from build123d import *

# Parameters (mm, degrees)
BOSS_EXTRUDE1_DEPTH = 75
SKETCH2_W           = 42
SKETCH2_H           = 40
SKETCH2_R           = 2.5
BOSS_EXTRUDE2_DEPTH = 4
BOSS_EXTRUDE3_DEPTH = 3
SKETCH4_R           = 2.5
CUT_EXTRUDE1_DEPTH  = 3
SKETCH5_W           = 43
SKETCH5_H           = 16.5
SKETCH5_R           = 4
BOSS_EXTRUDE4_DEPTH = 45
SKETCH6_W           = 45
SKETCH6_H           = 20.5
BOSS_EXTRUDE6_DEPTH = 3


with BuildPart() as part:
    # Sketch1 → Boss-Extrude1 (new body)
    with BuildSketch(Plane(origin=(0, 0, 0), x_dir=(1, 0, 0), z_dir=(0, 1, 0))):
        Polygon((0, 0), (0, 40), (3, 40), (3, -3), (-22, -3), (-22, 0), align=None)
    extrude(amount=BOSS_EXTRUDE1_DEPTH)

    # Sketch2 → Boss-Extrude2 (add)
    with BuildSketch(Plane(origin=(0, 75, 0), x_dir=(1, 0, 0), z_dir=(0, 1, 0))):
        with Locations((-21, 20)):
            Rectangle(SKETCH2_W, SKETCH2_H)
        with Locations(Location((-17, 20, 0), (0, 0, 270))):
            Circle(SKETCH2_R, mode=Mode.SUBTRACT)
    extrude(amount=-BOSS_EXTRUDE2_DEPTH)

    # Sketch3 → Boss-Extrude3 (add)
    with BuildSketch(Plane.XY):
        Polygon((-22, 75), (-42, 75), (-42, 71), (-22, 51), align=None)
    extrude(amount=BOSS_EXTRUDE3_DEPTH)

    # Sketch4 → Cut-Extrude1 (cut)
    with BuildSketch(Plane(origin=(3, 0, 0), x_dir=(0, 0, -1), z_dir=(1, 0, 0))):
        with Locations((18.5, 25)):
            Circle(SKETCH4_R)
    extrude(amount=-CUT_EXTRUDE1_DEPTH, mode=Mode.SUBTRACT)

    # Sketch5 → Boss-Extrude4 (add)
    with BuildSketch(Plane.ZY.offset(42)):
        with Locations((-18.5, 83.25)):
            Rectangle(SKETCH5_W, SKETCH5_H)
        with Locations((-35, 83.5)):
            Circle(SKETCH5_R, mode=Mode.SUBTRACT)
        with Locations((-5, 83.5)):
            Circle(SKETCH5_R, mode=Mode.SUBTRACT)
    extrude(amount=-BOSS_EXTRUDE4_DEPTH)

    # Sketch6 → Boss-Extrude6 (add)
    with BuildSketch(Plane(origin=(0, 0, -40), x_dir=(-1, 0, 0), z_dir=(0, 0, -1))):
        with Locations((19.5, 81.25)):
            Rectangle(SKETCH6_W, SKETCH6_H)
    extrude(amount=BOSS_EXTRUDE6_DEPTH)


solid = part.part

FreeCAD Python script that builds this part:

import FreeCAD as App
import Part
import Sketcher

doc = App.newDocument("Part")
body = doc.addObject("PartDesign::Body", "Body")

sketch1 = body.newObject("Sketcher::SketchObject", "Sketch")
sketch1.AttachmentSupport = (doc.getObject("XZ_Plane"), [""])
sketch1.MapMode = "FlatFace"
sketch1.addGeometry([
    Part.LineSegment(App.Vector(0, -40, 0), App.Vector(0, 0, 0)),
    Part.LineSegment(App.Vector(0, 0, 0), App.Vector(-22, 0, 0)),
    Part.LineSegment(App.Vector(-22, 0, 0), App.Vector(-22, 3, 0)),
    Part.LineSegment(App.Vector(-22, 3, 0), App.Vector(3, 3, 0)),
    Part.LineSegment(App.Vector(3, 3, 0), App.Vector(3, -40, 0)),
    Part.LineSegment(App.Vector(3, -40, 0), App.Vector(0, -40, 0)),
], False)
sketch1.addConstraint([
    Sketcher.Constraint("Coincident", 0, 2, 1, 1),
    Sketcher.Constraint("Coincident", 1, 2, 2, 1),
    Sketcher.Constraint("Coincident", 2, 2, 3, 1),
    Sketcher.Constraint("Coincident", 3, 2, 4, 1),
    Sketcher.Constraint("Coincident", 4, 2, 5, 1),
    Sketcher.Constraint("Coincident", 5, 2, 0, 1),
    Sketcher.Constraint("Vertical", 0),
    Sketcher.Constraint("Horizontal", 1),
    Sketcher.Constraint("Vertical", 2),
    Sketcher.Constraint("Horizontal", 3),
    Sketcher.Constraint("Vertical", 4),
    Sketcher.Constraint("Horizontal", 5),
    Sketcher.Constraint("Coincident", 0, 2, -1, 1),
    Sketcher.Constraint("Equal", 5, 2),
    Sketcher.Constraint("DistanceX", 1, 2, 1, 1, 22.0),
    Sketcher.Constraint("DistanceX", 3, 1, 3, 2, 25.0),
    Sketcher.Constraint("DistanceY", 0, 1, 0, 2, 40.0),
])
pad1 = body.newObject("PartDesign::Pad", "Pad")
pad1.Profile = sketch1
pad1.Length = 75
pad1.Reversed = True

sketch2 = body.newObject("Sketcher::SketchObject", "Sketch001")
sketch2.AttachmentSupport = (doc.getObject("XZ_Plane"), [""])
sketch2.MapMode = "FlatFace"
sketch2.AttachmentOffset = App.Placement(App.Vector(0, 0, -75), App.Rotation())
sketch2.addGeometry([
    Part.LineSegment(App.Vector(-42, -40, 0), App.Vector(-42, 0, 0)),
    Part.LineSegment(App.Vector(-42, 0, 0), App.Vector(0, 0, 0)),
    Part.LineSegment(App.Vector(0, 0, 0), App.Vector(0, -40, 0)),
    Part.LineSegment(App.Vector(0, -40, 0), App.Vector(-42, -40, 0)),
    Part.Circle(App.Vector(-17, -20, 0), App.Vector(0, 0, 1), 2.5),
], False)
sketch2.addConstraint([
    Sketcher.Constraint("Coincident", 0, 2, 1, 1),
    Sketcher.Constraint("Coincident", 1, 2, 2, 1),
    Sketcher.Constraint("Coincident", 2, 2, 3, 1),
    Sketcher.Constraint("Coincident", 3, 2, 0, 1),
    Sketcher.Constraint("Vertical", 0),
    Sketcher.Constraint("Horizontal", 1),
    Sketcher.Constraint("Vertical", 2),
    Sketcher.Constraint("Horizontal", 3),
    Sketcher.Constraint("Coincident", 1, 2, -1, 1),
    Sketcher.Constraint("Diameter", 4, 5.0),
    Sketcher.Constraint("DistanceX", 1, 1, 1, 2, 42.0),
    Sketcher.Constraint("DistanceY", 0, 1, 0, 2, 40.0),
    Sketcher.Constraint("DistanceX", 4, 3, -1, 1, 17.0),
    Sketcher.Constraint("DistanceY", 4, 3, -1, 1, 20.0),
])
pad2 = body.newObject("PartDesign::Pad", "Pad001")
pad2.Profile = sketch2
pad2.Length = 4

sketch3 = body.newObject("Sketcher::SketchObject", "Sketch002")
sketch3.AttachmentSupport = (doc.getObject("XY_Plane"), [""])
sketch3.MapMode = "FlatFace"
sketch3.addGeometry([
    Part.LineSegment(App.Vector(-22, 75, 0), App.Vector(-42, 75, 0)),
    Part.LineSegment(App.Vector(-42, 75, 0), App.Vector(-42, 71, 0)),
    Part.LineSegment(App.Vector(-42, 71, 0), App.Vector(-22, 51, 0)),
    Part.LineSegment(App.Vector(-22, 51, 0), App.Vector(-22, 75, 0)),
], False)
sketch3.addConstraint([
    Sketcher.Constraint("Coincident", 0, 2, 1, 1),
    Sketcher.Constraint("Coincident", 1, 2, 2, 1),
    Sketcher.Constraint("Coincident", 2, 2, 3, 1),
    Sketcher.Constraint("Coincident", 3, 2, 0, 1),
    Sketcher.Constraint("Horizontal", 0),
    Sketcher.Constraint("Vertical", 1),
    Sketcher.Constraint("Vertical", 3),
    Sketcher.Constraint("DistanceX", 0, 2, 0, 1, 20.0),
    Sketcher.Constraint("DistanceY", 1, 2, 1, 1, 4.0),
    Sketcher.Constraint("DistanceY", 3, 1, 3, 2, 24.0),
    Sketcher.Constraint("DistanceX", 0, 2, -1, 1, 42.0),
    Sketcher.Constraint("DistanceY", -1, 1, 0, 2, 75.0),
])
pad3 = body.newObject("PartDesign::Pad", "Pad002")
pad3.Profile = sketch3
pad3.Length = 3

sketch4 = body.newObject("Sketcher::SketchObject", "Sketch003")
sketch4.AttachmentSupport = (doc.getObject("YZ_Plane"), [""])
sketch4.MapMode = "FlatFace"
sketch4.AttachmentOffset = App.Placement(App.Vector(0, 0, 3), App.Rotation())
sketch4.addGeometry(Part.Circle(App.Vector(25, -18.5, 0), App.Vector(0, 0, 1), 2.5), False)
sketch4.addConstraint([
    Sketcher.Constraint("Diameter", 0, 5.0),
    Sketcher.Constraint("DistanceX", -1, 1, 0, 3, 25.0),
    Sketcher.Constraint("DistanceY", 0, 3, -1, 1, 18.5),
])
pocket1 = body.newObject("PartDesign::Pocket", "Pocket")
pocket1.Profile = sketch4
pocket1.Length = 3

sketch5 = body.newObject("Sketcher::SketchObject", "Sketch004")
sketch5.AttachmentSupport = (doc.getObject("YZ_Plane"), [""])
sketch5.MapMode = "FlatFace"
sketch5.AttachmentOffset = App.Placement(App.Vector(0, 0, -42), App.Rotation())
sketch5.addGeometry([
    Part.LineSegment(App.Vector(91.5, -40, 0), App.Vector(75, -40, 0)),
    Part.LineSegment(App.Vector(75, -40, 0), App.Vector(75, 3, 0)),
    Part.LineSegment(App.Vector(75, 3, 0), App.Vector(91.5, 3, 0)),
    Part.LineSegment(App.Vector(91.5, 3, 0), App.Vector(91.5, -40, 0)),
    Part.Circle(App.Vector(83.5, -35, 0), App.Vector(0, 0, 1), 4),
    Part.Circle(App.Vector(83.5, -5, 0), App.Vector(0, 0, 1), 4),
], False)
sketch5.addConstraint([
    Sketcher.Constraint("Coincident", 0, 2, 1, 1),
    Sketcher.Constraint("Coincident", 1, 2, 2, 1),
    Sketcher.Constraint("Coincident", 2, 2, 3, 1),
    Sketcher.Constraint("Coincident", 3, 2, 0, 1),
    Sketcher.Constraint("Horizontal", 0),
    Sketcher.Constraint("Vertical", 1),
    Sketcher.Constraint("Horizontal", 2),
    Sketcher.Constraint("Vertical", 3),
    Sketcher.Constraint("Equal", 4, 5),
    Sketcher.Constraint("Vertical", 4, 3, 5, 3),
    Sketcher.Constraint("Diameter", 4, 8.0),
    Sketcher.Constraint("DistanceY", 1, 1, 1, 2, 43.0),
    Sketcher.Constraint("DistanceX", 0, 2, 0, 1, 16.5),
    Sketcher.Constraint("DistanceY", 4, 3, -1, 1, 35.0),
    Sketcher.Constraint("DistanceY", 5, 3, -1, 1, 5.0),
    Sketcher.Constraint("DistanceX", -1, 1, 0, 2, 75.0),
    Sketcher.Constraint("DistanceY", 0, 2, -1, 1, 40.0),
    Sketcher.Constraint("DistanceX", 5, 3, 2, 2, 8.0),
])
pad4 = body.newObject("PartDesign::Pad", "Pad003")
pad4.Profile = sketch5
pad4.Length = 45

sketch6 = body.newObject("Sketcher::SketchObject", "Sketch005")
sketch6.AttachmentSupport = (doc.getObject("XY_Plane"), [""])
sketch6.MapMode = "FlatFace"
sketch6.AttachmentOffset = App.Placement(App.Vector(0, 0, -40), App.Rotation())
sketch6.addGeometry([
    Part.LineSegment(App.Vector(3, 91.5, 0), App.Vector(3, 71, 0)),
    Part.LineSegment(App.Vector(3, 71, 0), App.Vector(-42, 71, 0)),
    Part.LineSegment(App.Vector(-42, 71, 0), App.Vector(-42, 91.5, 0)),
    Part.LineSegment(App.Vector(-42, 91.5, 0), App.Vector(3, 91.5, 0)),
], False)
sketch6.addConstraint([
    Sketcher.Constraint("Coincident", 0, 2, 1, 1),
    Sketcher.Constraint("Coincident", 1, 2, 2, 1),
    Sketcher.Constraint("Coincident", 2, 2, 3, 1),
    Sketcher.Constraint("Coincident", 3, 2, 0, 1),
    Sketcher.Constraint("Vertical", 0),
    Sketcher.Constraint("Horizontal", 1),
    Sketcher.Constraint("Vertical", 2),
    Sketcher.Constraint("Horizontal", 3),
    Sketcher.Constraint("DistanceX", 1, 2, 1, 1, 45.0),
    Sketcher.Constraint("DistanceY", 0, 2, 0, 1, 20.5),
    Sketcher.Constraint("DistanceX", -1, 1, 0, 2, 3.0),
    Sketcher.Constraint("DistanceY", -1, 1, 0, 2, 71.0),
])
pad5 = body.newObject("PartDesign::Pad", "Pad004")
pad5.Profile = sketch6
pad5.Length = 3
pad5.Reversed = True

doc.recompute()
